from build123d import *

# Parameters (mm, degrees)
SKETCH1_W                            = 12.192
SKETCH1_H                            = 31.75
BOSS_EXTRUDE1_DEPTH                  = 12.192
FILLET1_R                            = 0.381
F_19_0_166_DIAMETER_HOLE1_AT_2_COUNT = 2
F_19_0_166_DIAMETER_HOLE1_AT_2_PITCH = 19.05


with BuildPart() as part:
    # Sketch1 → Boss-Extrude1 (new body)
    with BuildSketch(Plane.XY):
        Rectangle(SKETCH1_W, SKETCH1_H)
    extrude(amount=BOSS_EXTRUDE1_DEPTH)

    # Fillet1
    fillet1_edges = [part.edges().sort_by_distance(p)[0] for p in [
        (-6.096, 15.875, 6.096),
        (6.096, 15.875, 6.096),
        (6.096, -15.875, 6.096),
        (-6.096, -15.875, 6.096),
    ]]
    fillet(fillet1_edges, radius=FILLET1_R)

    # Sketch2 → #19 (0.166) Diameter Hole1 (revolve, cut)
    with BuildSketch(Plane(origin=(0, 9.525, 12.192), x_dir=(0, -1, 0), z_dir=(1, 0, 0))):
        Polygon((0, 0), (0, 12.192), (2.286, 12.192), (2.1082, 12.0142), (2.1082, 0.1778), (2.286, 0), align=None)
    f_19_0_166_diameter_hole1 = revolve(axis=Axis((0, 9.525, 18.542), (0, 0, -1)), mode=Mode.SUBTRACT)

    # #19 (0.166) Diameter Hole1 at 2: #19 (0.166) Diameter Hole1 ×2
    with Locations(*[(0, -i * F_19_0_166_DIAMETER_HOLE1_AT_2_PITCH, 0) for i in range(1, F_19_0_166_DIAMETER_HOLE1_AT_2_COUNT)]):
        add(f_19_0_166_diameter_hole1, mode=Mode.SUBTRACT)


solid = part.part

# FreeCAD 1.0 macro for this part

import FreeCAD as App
import Part
import Sketcher
from FreeCAD import Vector
Q = App.Units.Quantity


def edges_at(feature, points):
    """Names of the edges that pass closest to the given points."""
    edges = feature.Shape.Edges
    near = lambda p: min(range(len(edges)), key=lambda i: edges[i].distToShape(Part.Vertex(*p))[0])
    return sorted({f"Edge{near(p) + 1}" for p in points})

doc = App.newDocument("Part")
params = doc.addObject("Spreadsheet::Sheet", "Params")
for row, (alias, value) in enumerate([
    ("sketch1_width", "0.48 in"),
    ("sketch1_height", "1.25 in"),
    ("pad1_length", "0.48 in"),
    ("fillet_radius", "0.015 in"),
    ("sketch2_width", "0.09 in"),
    ("sketch2_height", "0.48 in"),
    ("sketch2_height2", "0.466 in"),
    ("groove_angle", "360 deg"),
    ("linearpattern_pitch", "0.75 in"),
], start=1):
    params.set(f"A{row}", alias)
    params.set(f"B{row}", "=" + value)
    params.setAlias(f"B{row}", alias)

body = doc.addObject("PartDesign::Body", "Body")

# Sketch on XY plane
sketch1 = body.newObject("Sketcher::SketchObject", "Sketch")
sketch1.AttachmentSupport = (doc.getObject("XY_Plane"), [""])
sketch1.MapMode = "FlatFace"
sketch1.addGeometry(Part.LineSegment(Vector(-6, 16, 0), Vector(-6, -16, 0)), False)
sketch1.addGeometry(Part.LineSegment(Vector(-6, -16, 0), Vector(6, -16, 0)), False)
sketch1.addGeometry(Part.LineSegment(Vector(6, -16, 0), Vector(6, 16, 0)), False)
sketch1.addGeometry(Part.LineSegment(Vector(6, 16, 0), Vector(-6, 16, 0)), False)
sketch1.addConstraint(Sketcher.Constraint("Coincident", 0, 2, 1, 1))
sketch1.addConstraint(Sketcher.Constraint("Coincident", 1, 2, 2, 1))
sketch1.addConstraint(Sketcher.Constraint("Coincident", 2, 2, 3, 1))
sketch1.addConstraint(Sketcher.Constraint("Coincident", 3, 2, 0, 1))
sketch1.addConstraint(Sketcher.Constraint("Vertical", 0))
sketch1.addConstraint(Sketcher.Constraint("Horizontal", 1))
sketch1.addConstraint(Sketcher.Constraint("Vertical", 2))
sketch1.addConstraint(Sketcher.Constraint("Horizontal", 3))
sketch1.addConstraint(Sketcher.Constraint("Symmetric", 0, 2, 2, 2, -1, 1))
sketch1.addConstraint(Sketcher.Constraint("DistanceX", 1, 1, 1, 2, Q("0.48 in")))
sketch1.addConstraint(Sketcher.Constraint("DistanceY", 0, 2, 0, 1, Q("1.25 in")))
sketch1.setExpression("Constraints[9]", "Params.sketch1_width")
sketch1.setExpression("Constraints[10]", "Params.sketch1_height")
pad1 = body.newObject("PartDesign::Pad", "Pad")
pad1.Profile = sketch1
pad1.setExpression("Length", "Params.pad1_length")
doc.recompute()

fillet = body.newObject("PartDesign::Fillet", "Fillet")
fillet.Base = (pad1, edges_at(pad1, [
    (-6.096, 15.875, 6.096),
    (6.096, 15.875, 6.096),
    (6.096, -15.875, 6.096),
    (-6.096, -15.875, 6.096),
]))
fillet.setExpression("Radius", "Params.fillet_radius")

# Sketch on YZ plane
sketch2 = body.newObject("Sketcher::SketchObject", "Sketch001")
sketch2.AttachmentSupport = (doc.getObject("YZ_Plane"), [""])
sketch2.MapMode = "FlatFace"
sketch2.addGeometry(Part.LineSegment(Vector(9.53, 0, 0), Vector(9.53, 12.19, 0)), False)
sketch2.addGeometry(Part.LineSegment(Vector(9.53, 12.19, 0), Vector(7.24, 12.19, 0)), False)
sketch2.addGeometry(Part.LineSegment(Vector(7.24, 12.19, 0), Vector(7.42, 12.01, 0)), False)
sketch2.addGeometry(Part.LineSegment(Vector(7.42, 12.01, 0), Vector(7.42, 0.18, 0)), False)
sketch2.addGeometry(Part.LineSegment(Vector(7.42, 0.18, 0), Vector(7.24, 0, 0)), False)
sketch2.addGeometry(Part.LineSegment(Vector(7.24, 0, 0), Vector(9.53, 0, 0)), False)
sketch2.addGeometry(Part.LineSegment(Vector(9.53, 12.19, 0), Vector(9.53, 0, 0)), True)  # axis
sketch2.addConstraint(Sketcher.Constraint("Coincident", 0, 2, 1, 1))
sketch2.addConstraint(Sketcher.Constraint("Coincident", 1, 2, 2, 1))
sketch2.addConstraint(Sketcher.Constraint("Coincident", 2, 2, 3, 1))
sketch2.addConstraint(Sketcher.Constraint("Coincident", 3, 2, 4, 1))
sketch2.addConstraint(Sketcher.Constraint("Coincident", 4, 2, 5, 1))
sketch2.addConstraint(Sketcher.Constraint("Coincident", 5, 2, 0, 1))
sketch2.addConstraint(Sketcher.Constraint("Vertical", 0))
sketch2.addConstraint(Sketcher.Constraint("Horizontal", 1))
sketch2.addConstraint(Sketcher.Constraint("Vertical", 3))
sketch2.addConstraint(Sketcher.Constraint("Horizontal", 5))
sketch2.addConstraint(Sketcher.Constraint("Vertical", 6))
sketch2.addConstraint(Sketcher.Constraint("Coincident", 6, 1, 0, 2))
sketch2.addConstraint(Sketcher.Constraint("PointOnObject", 4, 2, -1))
sketch2.addConstraint(Sketcher.Constraint("PointOnObject", 6, 2, -1))
sketch2.addConstraint(Sketcher.Constraint("Perpendicular", 2, 4))
sketch2.addConstraint(Sketcher.Constraint("Vertical", 1, 2, 4, 2))
sketch2.addConstraint(Sketcher.Constraint("Equal", 2, 4))
sketch2.addConstraint(Sketcher.Constraint("DistanceX", 1, 2, 1, 1, Q("0.09 in")))
sketch2.addConstraint(Sketcher.Constraint("DistanceY", 0, 1, 0, 2, Q("0.48 in")))
sketch2.addConstraint(Sketcher.Constraint("DistanceY", 3, 2, 3, 1, Q("0.466 in")))
sketch2.addConstraint(Sketcher.Constraint("DistanceX", -1, 1, 0, 2, Q("0.375 in")))
sketch2.setExpression("Constraints[17]", "Params.sketch2_width")
sketch2.setExpression("Constraints[18]", "Params.sketch2_height")
sketch2.setExpression("Constraints[19]", "Params.sketch2_height2")
groove = body.newObject("PartDesign::Groove", "Groove")
groove.Profile = sketch2
groove.ReferenceAxis = (sketch2, ["Axis0"])
groove.setExpression("Angle", "Params.groove_angle")
doc.recompute()

linearpattern = body.newObject("PartDesign::LinearPattern", "LinearPattern")
linearpattern.Originals = [groove]
linearpattern.Direction = (doc.getObject("Y_Axis"), [""])
linearpattern.Mode = "offset"
linearpattern.setExpression("Offset", "Params.linearpattern_pitch")
linearpattern.Occurrences = 2
linearpattern.Reversed = True
body.Tip = linearpattern

doc.recompute()
